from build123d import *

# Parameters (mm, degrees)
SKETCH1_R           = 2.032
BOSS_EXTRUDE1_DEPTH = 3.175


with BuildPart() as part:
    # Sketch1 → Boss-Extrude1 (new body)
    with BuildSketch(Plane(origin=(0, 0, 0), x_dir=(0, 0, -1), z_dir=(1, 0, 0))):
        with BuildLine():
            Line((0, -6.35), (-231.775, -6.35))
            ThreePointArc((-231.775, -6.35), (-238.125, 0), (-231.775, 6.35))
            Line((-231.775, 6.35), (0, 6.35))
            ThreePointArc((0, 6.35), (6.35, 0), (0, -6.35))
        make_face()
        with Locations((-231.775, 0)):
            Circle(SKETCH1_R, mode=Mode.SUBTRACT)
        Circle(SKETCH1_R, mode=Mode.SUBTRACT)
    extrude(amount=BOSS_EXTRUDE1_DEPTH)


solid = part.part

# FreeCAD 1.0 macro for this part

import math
import FreeCAD as App
import Part
import Sketcher

V = App.Vector
Q = App.Units.Quantity

doc = App.newDocument("Part")
params = doc.addObject("Spreadsheet::Sheet", "Params")
for row, (alias, value) in enumerate([
    ("sketch1_diameter", "0.16 in"),
    ("sketch1_radius", "0.25 in"),
    ("sketch1_height", "9.125 in"),
    ("pad1_length", "0.125 in"),
], start=1):
    params.set(f"A{row}", alias)
    params.set(f"B{row}", "=" + value)
    params.setAlias(f"B{row}", alias)

body = doc.addObject("PartDesign::Body", "Body")

sketch1 = doc.addObject("Sketcher::SketchObject", "Sketch")
body.addObject(sketch1)
sketch1.AttachmentSupport = (doc.YZ_Plane, [""])
sketch1.MapMode = "FlatFace"
sketch1.addGeometry(Part.LineSegment(V(-6.3, 231.8, 0), V(-6.3, 0, 0)), False)
sketch1.addGeometry(Part.ArcOfCircle(Part.Circle(V(0, 0, 0), V(0, 0, 1), 6.3), math.radians(180), math.radians(360)), False)
sketch1.addGeometry(Part.LineSegment(V(6.3, 0, 0), V(6.3, 231.8, 0)), False)
sketch1.addGeometry(Part.ArcOfCircle(Part.Circle(V(0, 231.8, 0), V(0, 0, 1), 6.3), math.radians(0), math.radians(180)), False)
sketch1.addGeometry(Part.Circle(V(0, 0, 0), V(0, 0, 1), 2), False)
sketch1.addGeometry(Part.Circle(V(0, 231.8, 0), V(0, 0, 1), 2), False)
sketch1.addConstraint(Sketcher.Constraint("Tangent", 0, 2, 1, 1))
sketch1.addConstraint(Sketcher.Constraint("Tangent", 1, 2, 2, 1))
sketch1.addConstraint(Sketcher.Constraint("Tangent", 2, 2, 3, 1))
sketch1.addConstraint(Sketcher.Constraint("Tangent", 3, 2, 0, 1))
sketch1.addConstraint(Sketcher.Constraint("Vertical", 0))
sketch1.addConstraint(Sketcher.Constraint("Vertical", 2))
sketch1.addConstraint(Sketcher.Constraint("Coincident", 1, 3, -1, 1))
sketch1.addConstraint(Sketcher.Constraint("Coincident", 4, 3, -1, 1))
sketch1.addConstraint(Sketcher.Constraint("Coincident", 5, 3, 3, 3))
sketch1.addConstraint(Sketcher.Constraint("Equal", 4, 5))
sketch1.addConstraint(Sketcher.Constraint("Diameter", 4, Q("0.16 in")))
sketch1.addConstraint(Sketcher.Constraint("Radius", 1, Q("0.25 in")))
sketch1.addConstraint(Sketcher.Constraint("DistanceY", 0, 2, 0, 1, Q("9.125 in")))
sketch1.setExpression("Constraints[10]", "Params.sketch1_diameter")
sketch1.setExpression("Constraints[11]", "Params.sketch1_radius")
sketch1.setExpression("Constraints[12]", "Params.sketch1_height")
pad1 = doc.addObject("PartDesign::Pad", "Pad")
body.addObject(pad1)
pad1.Profile = sketch1
pad1.setExpression("Length", "Params.pad1_length")

doc.recompute()
